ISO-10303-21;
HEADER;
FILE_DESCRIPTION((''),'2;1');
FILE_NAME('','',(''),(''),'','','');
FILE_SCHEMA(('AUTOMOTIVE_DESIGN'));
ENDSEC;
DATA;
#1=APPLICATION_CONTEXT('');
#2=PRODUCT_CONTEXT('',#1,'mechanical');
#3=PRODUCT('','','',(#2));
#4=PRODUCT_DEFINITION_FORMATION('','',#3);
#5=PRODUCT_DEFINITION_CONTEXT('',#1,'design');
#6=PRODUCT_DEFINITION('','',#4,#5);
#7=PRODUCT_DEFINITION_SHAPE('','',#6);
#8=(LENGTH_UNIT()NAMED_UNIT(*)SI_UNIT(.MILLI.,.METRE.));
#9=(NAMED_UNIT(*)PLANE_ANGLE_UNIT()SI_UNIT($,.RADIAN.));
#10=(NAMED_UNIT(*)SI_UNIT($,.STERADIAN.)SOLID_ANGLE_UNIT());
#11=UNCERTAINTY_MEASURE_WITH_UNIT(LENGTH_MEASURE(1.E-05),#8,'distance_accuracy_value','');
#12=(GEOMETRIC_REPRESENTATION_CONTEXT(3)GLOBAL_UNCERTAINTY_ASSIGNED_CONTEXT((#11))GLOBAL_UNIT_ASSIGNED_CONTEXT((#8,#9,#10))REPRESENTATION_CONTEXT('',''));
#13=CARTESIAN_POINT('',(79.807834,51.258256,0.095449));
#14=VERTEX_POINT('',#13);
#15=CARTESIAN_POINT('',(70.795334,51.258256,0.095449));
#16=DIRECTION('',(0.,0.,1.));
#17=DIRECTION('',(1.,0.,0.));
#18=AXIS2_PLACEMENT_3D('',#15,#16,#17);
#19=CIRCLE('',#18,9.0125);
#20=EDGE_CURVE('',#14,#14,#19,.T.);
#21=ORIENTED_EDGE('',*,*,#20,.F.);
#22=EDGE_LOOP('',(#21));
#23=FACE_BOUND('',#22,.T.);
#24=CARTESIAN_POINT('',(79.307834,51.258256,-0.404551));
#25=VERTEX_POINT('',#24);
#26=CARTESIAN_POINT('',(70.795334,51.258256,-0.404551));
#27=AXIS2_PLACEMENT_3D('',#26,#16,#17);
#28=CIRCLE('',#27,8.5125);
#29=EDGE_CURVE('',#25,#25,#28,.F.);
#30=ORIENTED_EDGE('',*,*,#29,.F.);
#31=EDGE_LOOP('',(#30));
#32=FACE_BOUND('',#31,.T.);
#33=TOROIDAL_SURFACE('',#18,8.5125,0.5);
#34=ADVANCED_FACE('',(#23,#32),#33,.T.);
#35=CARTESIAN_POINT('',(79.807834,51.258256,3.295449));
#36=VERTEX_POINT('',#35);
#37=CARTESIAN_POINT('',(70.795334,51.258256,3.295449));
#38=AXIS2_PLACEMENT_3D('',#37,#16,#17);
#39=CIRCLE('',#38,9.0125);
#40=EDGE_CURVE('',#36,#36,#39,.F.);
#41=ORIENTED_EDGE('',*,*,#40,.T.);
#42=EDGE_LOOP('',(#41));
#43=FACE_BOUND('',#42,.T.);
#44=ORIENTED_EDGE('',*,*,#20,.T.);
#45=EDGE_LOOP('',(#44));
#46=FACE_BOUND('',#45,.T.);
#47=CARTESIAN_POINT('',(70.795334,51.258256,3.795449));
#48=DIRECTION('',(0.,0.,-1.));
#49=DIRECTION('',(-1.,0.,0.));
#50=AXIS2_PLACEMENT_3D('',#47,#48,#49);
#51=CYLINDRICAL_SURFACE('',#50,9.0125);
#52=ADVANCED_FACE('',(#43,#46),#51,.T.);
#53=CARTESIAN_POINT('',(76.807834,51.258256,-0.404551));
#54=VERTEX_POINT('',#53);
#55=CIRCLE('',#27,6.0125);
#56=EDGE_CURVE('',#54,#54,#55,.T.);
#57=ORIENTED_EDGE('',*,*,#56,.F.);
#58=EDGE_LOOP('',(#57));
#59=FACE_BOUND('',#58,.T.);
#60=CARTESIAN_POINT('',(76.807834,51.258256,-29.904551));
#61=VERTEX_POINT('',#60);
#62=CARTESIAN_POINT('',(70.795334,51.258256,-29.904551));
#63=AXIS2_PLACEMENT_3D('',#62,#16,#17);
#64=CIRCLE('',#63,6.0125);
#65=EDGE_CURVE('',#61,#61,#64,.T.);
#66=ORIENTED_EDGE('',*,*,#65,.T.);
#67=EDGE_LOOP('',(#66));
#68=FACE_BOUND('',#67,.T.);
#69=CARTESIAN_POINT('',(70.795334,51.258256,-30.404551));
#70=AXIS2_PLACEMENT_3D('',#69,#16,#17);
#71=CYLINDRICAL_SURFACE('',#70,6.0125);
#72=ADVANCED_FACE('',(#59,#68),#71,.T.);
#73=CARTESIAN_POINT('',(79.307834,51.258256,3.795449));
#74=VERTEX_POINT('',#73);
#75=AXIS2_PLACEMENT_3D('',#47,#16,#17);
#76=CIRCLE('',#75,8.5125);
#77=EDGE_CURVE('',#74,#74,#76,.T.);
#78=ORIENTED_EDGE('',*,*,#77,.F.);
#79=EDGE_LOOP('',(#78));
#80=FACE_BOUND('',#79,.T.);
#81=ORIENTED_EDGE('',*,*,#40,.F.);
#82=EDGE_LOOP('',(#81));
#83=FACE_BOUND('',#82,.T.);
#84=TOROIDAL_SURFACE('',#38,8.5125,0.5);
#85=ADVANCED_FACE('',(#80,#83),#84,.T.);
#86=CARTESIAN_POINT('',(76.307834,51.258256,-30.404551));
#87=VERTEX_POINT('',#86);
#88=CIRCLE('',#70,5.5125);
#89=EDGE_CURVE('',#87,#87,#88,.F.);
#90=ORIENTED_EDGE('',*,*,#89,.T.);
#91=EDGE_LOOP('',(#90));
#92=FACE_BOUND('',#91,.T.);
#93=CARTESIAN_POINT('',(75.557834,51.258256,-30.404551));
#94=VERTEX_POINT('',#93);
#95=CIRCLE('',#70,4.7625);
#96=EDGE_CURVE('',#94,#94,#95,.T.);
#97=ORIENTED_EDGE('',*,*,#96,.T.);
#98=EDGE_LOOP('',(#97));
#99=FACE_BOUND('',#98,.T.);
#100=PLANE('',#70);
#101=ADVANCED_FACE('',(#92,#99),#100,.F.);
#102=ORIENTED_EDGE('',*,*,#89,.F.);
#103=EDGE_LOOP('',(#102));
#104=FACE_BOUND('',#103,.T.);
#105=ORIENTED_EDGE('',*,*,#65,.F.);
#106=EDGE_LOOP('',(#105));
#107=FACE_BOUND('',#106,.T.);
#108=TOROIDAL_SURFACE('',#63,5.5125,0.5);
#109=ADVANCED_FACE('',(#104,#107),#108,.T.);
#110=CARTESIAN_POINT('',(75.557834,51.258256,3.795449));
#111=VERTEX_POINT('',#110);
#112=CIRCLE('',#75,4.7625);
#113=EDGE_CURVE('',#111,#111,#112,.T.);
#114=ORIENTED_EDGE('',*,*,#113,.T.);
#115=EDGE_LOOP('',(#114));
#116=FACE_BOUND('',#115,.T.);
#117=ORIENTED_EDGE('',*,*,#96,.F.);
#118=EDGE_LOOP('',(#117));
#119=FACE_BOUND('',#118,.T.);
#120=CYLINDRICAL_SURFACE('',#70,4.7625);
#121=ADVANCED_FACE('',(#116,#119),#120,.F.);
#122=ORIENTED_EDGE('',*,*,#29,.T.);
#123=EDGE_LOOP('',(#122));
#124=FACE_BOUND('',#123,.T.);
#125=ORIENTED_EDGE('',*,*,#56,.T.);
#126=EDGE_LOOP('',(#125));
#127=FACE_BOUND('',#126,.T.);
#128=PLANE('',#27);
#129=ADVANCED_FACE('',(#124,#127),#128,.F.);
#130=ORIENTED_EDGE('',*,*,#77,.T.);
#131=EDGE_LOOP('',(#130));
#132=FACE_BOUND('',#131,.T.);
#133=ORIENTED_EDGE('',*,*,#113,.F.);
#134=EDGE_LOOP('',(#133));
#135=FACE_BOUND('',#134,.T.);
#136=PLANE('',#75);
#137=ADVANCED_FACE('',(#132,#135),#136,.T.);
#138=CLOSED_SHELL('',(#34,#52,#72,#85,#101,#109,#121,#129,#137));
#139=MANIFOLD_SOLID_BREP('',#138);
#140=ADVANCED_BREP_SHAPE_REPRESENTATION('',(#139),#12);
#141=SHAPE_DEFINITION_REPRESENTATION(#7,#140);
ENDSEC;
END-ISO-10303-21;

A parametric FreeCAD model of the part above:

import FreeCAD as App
import Part
import Sketcher
Q = App.Units.Quantity


def edges_at(feature, points):
    """Names of the edges that pass closest to the given points."""
    edges = feature.Shape.Edges
    near = lambda p: min(range(len(edges)), key=lambda i: edges[i].distToShape(Part.Vertex(*p))[0])
    return sorted({f"Edge{near(p) + 1}" for p in points})

doc = App.newDocument("Part")
body = doc.addObject("PartDesign::Body", "Body")

sketch1 = doc.addObject("Sketcher::SketchObject", "Sketch")
body.addObject(sketch1)
sketch1.AttachmentSupport = (doc.XY_Plane, [""])
sketch1.MapMode = "FlatFace"
sketch1.AttachmentOffset = App.Placement(App.Vector(0, 0, -0.404551), App.Rotation())
sketch1.addGeometry(Part.Circle(App.Vector(70.8, 51.3, 0), App.Vector(0, 0, 1), 6), False)
sketch1.addGeometry(Part.Circle(App.Vector(70.8, 51.3, 0), App.Vector(0, 0, 1), 4.8), False)
sketch1.addConstraint(Sketcher.Constraint("Coincident", 1, 3, 0, 3))
sketch1.addConstraint(Sketcher.Constraint("Diameter", 0, Q("12.025 mm")))
sketch1.addConstraint(Sketcher.Constraint("Diameter", 1, Q("9.525 mm")))
sketch1.addConstraint(Sketcher.Constraint("DistanceX", -1, 1, 0, 3, Q("70.795334 mm")))
sketch1.addConstraint(Sketcher.Constraint("DistanceY", -1, 1, 0, 3, Q("51.258256 mm")))
pad1 = doc.addObject("PartDesign::Pad", "Pad")
body.addObject(pad1)
pad1.Profile = sketch1
pad1.Type = "TwoLengths"
pad1.Length = 4.2
pad1.Length2 = 30

sketch2 = doc.addObject("Sketcher::SketchObject", "Sketch001")
body.addObject(sketch2)
sketch2.AttachmentSupport = (doc.XY_Plane, [""])
sketch2.MapMode = "FlatFace"
sketch2.AttachmentOffset = App.Placement(App.Vector(0, 0, -0.404551), App.Rotation())
sketch2.addGeometry(Part.Circle(App.Vector(71, 51, 0), App.Vector(0, 0, 1), 9), False)
sketch2.addGeometry(Part.Circle(App.Vector(71, 51, 0), App.Vector(0, 0, 1), 6), False)
sketch2.addConstraint(Sketcher.Constraint("Coincident", 1, 3, 0, 3))
sketch2.addConstraint(Sketcher.Constraint("Diameter", 0, Q("18.025 mm")))
sketch2.addConstraint(Sketcher.Constraint("Diameter", 1, Q("12.025 mm")))
sketch2.addConstraint(Sketcher.Constraint("DistanceX", -1, 1, 0, 3, Q("70.795334 mm")))
sketch2.addConstraint(Sketcher.Constraint("DistanceY", -1, 1, 0, 3, Q("51.258256 mm")))
pad2 = doc.addObject("PartDesign::Pad", "Pad001")
body.addObject(pad2)
pad2.Profile = sketch2
pad2.Length = 4.2
doc.recompute()

fillet = doc.addObject("PartDesign::Fillet", "Fillet")
body.addObject(fillet)
fillet.Base = (pad2, edges_at(pad2, [(61.783, 51.258, 3.795), (61.783, 51.258, -0.405), (64.783, 51.258, -30.405)]))
fillet.Radius = 0.5

doc.recompute()
